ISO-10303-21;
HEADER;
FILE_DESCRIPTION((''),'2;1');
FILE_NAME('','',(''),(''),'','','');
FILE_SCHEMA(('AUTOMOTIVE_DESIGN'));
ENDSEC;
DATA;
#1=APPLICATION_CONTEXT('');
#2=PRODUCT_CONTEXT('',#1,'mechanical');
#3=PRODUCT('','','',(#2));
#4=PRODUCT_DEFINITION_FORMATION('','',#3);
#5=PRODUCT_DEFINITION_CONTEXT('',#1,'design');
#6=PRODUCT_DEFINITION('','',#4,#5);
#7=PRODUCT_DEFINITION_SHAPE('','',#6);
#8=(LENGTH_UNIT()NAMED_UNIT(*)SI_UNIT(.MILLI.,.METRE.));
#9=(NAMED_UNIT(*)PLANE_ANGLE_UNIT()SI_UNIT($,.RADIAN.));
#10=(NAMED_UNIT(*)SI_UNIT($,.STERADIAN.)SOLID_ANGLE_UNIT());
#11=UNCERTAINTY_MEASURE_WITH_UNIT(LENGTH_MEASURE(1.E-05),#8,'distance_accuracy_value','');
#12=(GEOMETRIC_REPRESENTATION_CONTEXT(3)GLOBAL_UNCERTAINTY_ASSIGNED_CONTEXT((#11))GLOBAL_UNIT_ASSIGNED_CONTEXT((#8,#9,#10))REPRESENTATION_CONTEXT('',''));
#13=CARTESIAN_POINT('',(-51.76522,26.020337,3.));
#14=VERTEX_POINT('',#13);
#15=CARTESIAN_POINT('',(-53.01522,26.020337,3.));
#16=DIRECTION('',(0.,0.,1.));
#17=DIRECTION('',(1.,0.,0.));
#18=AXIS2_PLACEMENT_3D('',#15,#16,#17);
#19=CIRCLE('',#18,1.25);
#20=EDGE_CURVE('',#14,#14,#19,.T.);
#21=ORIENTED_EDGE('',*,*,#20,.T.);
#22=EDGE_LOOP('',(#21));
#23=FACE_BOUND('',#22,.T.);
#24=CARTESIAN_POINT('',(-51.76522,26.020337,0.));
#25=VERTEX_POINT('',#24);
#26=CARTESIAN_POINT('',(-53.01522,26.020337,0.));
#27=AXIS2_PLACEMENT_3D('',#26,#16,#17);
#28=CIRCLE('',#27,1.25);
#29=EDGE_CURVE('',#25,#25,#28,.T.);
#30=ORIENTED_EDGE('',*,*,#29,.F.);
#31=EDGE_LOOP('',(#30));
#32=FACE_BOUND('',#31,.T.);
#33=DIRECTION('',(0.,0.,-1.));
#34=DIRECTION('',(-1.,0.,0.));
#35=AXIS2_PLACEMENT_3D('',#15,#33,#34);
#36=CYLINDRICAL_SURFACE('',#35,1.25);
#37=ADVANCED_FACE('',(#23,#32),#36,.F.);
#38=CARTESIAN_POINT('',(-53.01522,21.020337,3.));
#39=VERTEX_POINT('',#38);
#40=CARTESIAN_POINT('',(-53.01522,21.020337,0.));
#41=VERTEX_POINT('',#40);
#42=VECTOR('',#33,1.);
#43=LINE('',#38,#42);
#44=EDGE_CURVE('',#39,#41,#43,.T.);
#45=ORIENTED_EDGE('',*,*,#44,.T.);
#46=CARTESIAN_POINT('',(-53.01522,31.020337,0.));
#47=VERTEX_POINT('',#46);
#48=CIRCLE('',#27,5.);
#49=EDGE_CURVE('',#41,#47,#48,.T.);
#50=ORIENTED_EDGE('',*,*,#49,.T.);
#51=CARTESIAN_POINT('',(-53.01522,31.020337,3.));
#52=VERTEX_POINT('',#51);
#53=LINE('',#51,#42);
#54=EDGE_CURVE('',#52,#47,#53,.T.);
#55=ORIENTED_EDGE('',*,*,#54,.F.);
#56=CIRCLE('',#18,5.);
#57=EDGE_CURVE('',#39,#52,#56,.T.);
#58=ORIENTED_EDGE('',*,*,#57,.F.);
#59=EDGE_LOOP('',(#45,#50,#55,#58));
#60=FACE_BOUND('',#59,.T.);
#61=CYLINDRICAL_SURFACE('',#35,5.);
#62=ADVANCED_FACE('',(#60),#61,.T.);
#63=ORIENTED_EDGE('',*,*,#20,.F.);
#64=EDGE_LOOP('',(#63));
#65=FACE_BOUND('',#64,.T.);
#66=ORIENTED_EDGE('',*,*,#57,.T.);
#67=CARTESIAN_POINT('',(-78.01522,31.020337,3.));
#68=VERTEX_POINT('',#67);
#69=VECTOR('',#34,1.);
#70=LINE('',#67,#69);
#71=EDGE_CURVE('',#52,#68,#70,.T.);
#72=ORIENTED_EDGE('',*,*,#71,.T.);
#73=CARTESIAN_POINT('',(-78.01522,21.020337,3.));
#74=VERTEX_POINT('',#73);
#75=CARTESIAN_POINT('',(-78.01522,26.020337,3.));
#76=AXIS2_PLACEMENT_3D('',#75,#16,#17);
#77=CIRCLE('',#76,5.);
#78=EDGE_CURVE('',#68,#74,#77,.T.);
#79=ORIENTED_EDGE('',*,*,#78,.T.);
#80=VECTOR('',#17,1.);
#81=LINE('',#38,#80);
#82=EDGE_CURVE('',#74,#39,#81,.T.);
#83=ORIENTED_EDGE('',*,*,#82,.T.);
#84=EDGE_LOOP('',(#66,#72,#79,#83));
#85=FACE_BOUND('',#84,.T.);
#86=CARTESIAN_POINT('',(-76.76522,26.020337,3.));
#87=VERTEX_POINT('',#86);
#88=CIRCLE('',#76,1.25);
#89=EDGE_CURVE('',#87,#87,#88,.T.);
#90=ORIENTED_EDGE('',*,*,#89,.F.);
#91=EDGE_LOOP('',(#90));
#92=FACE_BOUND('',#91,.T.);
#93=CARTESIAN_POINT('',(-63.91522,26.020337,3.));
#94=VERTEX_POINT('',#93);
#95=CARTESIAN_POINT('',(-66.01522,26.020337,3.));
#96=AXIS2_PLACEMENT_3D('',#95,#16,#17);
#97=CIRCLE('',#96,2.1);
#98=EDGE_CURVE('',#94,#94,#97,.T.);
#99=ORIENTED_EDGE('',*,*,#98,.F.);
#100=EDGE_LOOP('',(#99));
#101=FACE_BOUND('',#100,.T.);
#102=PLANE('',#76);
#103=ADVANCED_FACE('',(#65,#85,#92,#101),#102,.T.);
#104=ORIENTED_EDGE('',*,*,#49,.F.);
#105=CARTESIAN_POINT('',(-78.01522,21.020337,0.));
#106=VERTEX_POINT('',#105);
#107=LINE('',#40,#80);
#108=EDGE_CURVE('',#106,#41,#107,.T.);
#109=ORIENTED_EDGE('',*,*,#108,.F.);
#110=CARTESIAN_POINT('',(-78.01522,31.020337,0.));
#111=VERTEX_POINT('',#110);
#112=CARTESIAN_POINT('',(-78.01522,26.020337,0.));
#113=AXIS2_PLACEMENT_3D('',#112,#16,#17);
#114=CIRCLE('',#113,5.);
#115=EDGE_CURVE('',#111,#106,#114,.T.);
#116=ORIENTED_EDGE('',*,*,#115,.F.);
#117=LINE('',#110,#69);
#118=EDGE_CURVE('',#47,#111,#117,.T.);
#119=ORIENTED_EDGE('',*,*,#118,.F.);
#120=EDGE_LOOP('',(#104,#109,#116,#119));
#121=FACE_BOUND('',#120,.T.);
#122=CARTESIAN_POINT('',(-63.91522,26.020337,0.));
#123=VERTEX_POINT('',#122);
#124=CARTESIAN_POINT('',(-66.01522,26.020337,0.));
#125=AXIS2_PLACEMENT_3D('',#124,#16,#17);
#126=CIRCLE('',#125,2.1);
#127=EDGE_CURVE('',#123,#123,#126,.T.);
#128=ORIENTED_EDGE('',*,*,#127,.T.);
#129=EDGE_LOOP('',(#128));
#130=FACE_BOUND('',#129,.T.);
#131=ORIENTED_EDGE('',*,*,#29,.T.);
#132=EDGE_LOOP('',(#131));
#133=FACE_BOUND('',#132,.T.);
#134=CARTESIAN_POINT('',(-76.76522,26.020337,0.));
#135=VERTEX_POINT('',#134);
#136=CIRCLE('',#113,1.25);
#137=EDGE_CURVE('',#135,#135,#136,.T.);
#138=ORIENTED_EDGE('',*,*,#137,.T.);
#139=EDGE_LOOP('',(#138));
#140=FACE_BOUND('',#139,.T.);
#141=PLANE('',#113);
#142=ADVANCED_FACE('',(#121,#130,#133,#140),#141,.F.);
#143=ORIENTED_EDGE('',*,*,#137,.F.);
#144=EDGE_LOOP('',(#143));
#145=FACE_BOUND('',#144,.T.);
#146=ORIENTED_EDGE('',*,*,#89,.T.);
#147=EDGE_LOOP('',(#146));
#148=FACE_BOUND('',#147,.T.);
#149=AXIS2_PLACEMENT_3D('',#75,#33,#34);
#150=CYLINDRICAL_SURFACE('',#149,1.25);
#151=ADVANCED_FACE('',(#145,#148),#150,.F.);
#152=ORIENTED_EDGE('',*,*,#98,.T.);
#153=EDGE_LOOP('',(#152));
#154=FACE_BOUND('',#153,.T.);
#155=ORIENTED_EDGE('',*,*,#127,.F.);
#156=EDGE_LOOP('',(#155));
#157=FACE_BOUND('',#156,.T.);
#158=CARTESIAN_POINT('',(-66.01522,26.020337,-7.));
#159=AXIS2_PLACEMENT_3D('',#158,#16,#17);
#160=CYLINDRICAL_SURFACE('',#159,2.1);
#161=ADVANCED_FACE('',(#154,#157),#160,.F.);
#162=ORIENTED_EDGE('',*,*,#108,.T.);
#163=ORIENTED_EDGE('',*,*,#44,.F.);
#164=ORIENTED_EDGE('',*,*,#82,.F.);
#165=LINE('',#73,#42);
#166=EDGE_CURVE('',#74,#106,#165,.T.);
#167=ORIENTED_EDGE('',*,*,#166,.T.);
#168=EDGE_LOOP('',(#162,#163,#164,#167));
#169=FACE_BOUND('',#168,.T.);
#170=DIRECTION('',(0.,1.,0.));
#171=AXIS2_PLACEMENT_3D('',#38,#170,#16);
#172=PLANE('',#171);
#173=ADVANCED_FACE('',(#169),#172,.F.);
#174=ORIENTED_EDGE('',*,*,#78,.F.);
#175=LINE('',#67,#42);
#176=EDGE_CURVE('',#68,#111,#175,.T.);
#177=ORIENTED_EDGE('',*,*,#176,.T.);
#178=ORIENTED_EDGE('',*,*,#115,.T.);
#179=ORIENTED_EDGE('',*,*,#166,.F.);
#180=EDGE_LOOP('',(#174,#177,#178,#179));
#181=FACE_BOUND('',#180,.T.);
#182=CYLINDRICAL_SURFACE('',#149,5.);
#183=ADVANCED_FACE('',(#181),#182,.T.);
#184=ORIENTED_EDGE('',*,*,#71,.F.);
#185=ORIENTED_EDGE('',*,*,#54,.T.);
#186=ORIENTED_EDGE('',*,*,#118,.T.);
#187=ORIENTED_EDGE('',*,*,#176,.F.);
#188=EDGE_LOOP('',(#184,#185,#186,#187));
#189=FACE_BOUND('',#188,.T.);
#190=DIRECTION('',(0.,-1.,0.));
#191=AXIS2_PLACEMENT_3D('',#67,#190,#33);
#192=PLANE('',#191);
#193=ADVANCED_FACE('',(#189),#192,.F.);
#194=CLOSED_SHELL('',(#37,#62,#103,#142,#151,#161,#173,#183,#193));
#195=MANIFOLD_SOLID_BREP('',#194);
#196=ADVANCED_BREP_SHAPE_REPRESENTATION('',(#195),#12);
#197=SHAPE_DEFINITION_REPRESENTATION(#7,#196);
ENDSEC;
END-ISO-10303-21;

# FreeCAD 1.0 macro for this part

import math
import FreeCAD as App
import Part
import Sketcher
from FreeCAD import Vector

doc = App.newDocument("Part")
body = doc.addObject("PartDesign::Body", "Body")

sketch1 = body.newObject("Sketcher::SketchObject", "Sketch")
sketch1.AttachmentSupport = (doc.getObject("XY_Plane"), [""])
sketch1.MapMode = "FlatFace"
sketch1.addGeometry([
    Part.LineSegment(Vector(-53.01522, 31.020337, 0), Vector(-78.01522, 31.020337, 0)),
    Part.ArcOfCircle(Part.Circle(Vector(-78.01522, 26.020337, 0), Vector(0, 0, 1), 5), math.radians(90), math.radians(270)),
    Part.LineSegment(Vector(-78.01522, 21.020337, 0), Vector(-53.01522, 21.020337, 0)),
    Part.ArcOfCircle(Part.Circle(Vector(-53.01522, 26.020337, 0), Vector(0, 0, 1), 5), math.radians(-90), math.radians(90)),
    Part.Circle(Vector(-53.01522, 26.020337, 0), Vector(0, 0, 1), 1.25),
    Part.Circle(Vector(-63.01522, 26.020337, 0), Vector(0, 0, 1), 1.5),
    Part.Circle(Vector(-78.01522, 26.020337, 0), Vector(0, 0, 1), 1.25),
], False)
sketch1.addConstraint([
    Sketcher.Constraint("Tangent", 0, 2, 1, 1),
    Sketcher.Constraint("Tangent", 1, 2, 2, 1),
    Sketcher.Constraint("Tangent", 2, 2, 3, 1),
    Sketcher.Constraint("Tangent", 3, 2, 0, 1),
    Sketcher.Constraint("Horizontal", 0),
    Sketcher.Constraint("Horizontal", 2),
    Sketcher.Constraint("Coincident", 4, 3, 3, 3),
    Sketcher.Constraint("Coincident", 6, 3, 1, 3),
    Sketcher.Constraint("Equal", 4, 6),
    Sketcher.Constraint("Horizontal", 4, 3, 5, 3),
    Sketcher.Constraint("Diameter", 5, 3.0),
    Sketcher.Constraint("Radius", 1, 5.0),
    Sketcher.Constraint("Diameter", 4, 2.5),
    Sketcher.Constraint("DistanceX", 0, 2, 0, 1, 25.0),
    Sketcher.Constraint("DistanceX", 5, 3, 3, 3, 10.0),
    Sketcher.Constraint("DistanceX", 1, 3, -1, 1, 78.01522),
    Sketcher.Constraint("DistanceY", -1, 1, 1, 3, 26.020337),
])
pad1 = body.newObject("PartDesign::Pad", "Pad")
pad1.Profile = sketch1
pad1.Length = 3

sketch2 = body.newObject("Sketcher::SketchObject", "Sketch001")
sketch2.AttachmentSupport = (doc.getObject("XY_Plane"), [""])
sketch2.MapMode = "FlatFace"
sketch2.AttachmentOffset = App.Placement(Vector(0, 0, 3), App.Rotation())
sketch2.addGeometry(Part.Circle(Vector(-66.01522, 26.020337, 0), Vector(0, 0, 1), 2.1), False)
sketch2.addConstraint([
    Sketcher.Constraint("Diameter", 0, 4.2),
    Sketcher.Constraint("DistanceX", 0, 3, -1, 1, 66.01522),
    Sketcher.Constraint("DistanceY", -1, 1, 0, 3, 26.020337),
])
pocket1 = body.newObject("PartDesign::Pocket", "Pocket")
pocket1.Profile = sketch2
pocket1.Length = 10

sketch3 = body.newObject("Sketcher::SketchObject", "Sketch002")
sketch3.AttachmentSupport = (doc.getObject("XY_Plane"), [""])
sketch3.MapMode = "FlatFace"
sketch3.AttachmentOffset = App.Placement(Vector(0, 0, 3), App.Rotation())
sketch3.addGeometry([
    Part.ArcOfCircle(Part.Circle(Vector(-63.01522, 26.020337, 0), Vector(0, 0, 1), 1.5), math.radians(-139.464198), math.radians(139.464198)),
    Part.ArcOfCircle(Part.Circle(Vector(-66.01522, 26.020337, 0), Vector(0, 0, 1), 2.1), math.radians(-27.66045), math.radians(27.66045)),
], False)
sketch3.addConstraint([
    Sketcher.Constraint("Coincident", 0, 1, 1, 1),
    Sketcher.Constraint("Coincident", 1, 2, 0, 2),
    Sketcher.Constraint("Horizontal", 0, 3, 1, 3),
    Sketcher.Constraint("Radius", 0, 1.5),
    Sketcher.Constraint("Radius", 1, 2.1),
    Sketcher.Constraint("DistanceX", 1, 3, 0, 3, 3.0),
    Sketcher.Constraint("DistanceX", 0, 3, -1, 1, 63.01522),
    Sketcher.Constraint("DistanceY", -1, 1, 1, 2, 26.995222),
])
pad2 = body.newObject("PartDesign::Pad", "Pad001")
pad2.Profile = sketch3
pad2.Length = 3
pad2.Reversed = True

doc.recompute()
